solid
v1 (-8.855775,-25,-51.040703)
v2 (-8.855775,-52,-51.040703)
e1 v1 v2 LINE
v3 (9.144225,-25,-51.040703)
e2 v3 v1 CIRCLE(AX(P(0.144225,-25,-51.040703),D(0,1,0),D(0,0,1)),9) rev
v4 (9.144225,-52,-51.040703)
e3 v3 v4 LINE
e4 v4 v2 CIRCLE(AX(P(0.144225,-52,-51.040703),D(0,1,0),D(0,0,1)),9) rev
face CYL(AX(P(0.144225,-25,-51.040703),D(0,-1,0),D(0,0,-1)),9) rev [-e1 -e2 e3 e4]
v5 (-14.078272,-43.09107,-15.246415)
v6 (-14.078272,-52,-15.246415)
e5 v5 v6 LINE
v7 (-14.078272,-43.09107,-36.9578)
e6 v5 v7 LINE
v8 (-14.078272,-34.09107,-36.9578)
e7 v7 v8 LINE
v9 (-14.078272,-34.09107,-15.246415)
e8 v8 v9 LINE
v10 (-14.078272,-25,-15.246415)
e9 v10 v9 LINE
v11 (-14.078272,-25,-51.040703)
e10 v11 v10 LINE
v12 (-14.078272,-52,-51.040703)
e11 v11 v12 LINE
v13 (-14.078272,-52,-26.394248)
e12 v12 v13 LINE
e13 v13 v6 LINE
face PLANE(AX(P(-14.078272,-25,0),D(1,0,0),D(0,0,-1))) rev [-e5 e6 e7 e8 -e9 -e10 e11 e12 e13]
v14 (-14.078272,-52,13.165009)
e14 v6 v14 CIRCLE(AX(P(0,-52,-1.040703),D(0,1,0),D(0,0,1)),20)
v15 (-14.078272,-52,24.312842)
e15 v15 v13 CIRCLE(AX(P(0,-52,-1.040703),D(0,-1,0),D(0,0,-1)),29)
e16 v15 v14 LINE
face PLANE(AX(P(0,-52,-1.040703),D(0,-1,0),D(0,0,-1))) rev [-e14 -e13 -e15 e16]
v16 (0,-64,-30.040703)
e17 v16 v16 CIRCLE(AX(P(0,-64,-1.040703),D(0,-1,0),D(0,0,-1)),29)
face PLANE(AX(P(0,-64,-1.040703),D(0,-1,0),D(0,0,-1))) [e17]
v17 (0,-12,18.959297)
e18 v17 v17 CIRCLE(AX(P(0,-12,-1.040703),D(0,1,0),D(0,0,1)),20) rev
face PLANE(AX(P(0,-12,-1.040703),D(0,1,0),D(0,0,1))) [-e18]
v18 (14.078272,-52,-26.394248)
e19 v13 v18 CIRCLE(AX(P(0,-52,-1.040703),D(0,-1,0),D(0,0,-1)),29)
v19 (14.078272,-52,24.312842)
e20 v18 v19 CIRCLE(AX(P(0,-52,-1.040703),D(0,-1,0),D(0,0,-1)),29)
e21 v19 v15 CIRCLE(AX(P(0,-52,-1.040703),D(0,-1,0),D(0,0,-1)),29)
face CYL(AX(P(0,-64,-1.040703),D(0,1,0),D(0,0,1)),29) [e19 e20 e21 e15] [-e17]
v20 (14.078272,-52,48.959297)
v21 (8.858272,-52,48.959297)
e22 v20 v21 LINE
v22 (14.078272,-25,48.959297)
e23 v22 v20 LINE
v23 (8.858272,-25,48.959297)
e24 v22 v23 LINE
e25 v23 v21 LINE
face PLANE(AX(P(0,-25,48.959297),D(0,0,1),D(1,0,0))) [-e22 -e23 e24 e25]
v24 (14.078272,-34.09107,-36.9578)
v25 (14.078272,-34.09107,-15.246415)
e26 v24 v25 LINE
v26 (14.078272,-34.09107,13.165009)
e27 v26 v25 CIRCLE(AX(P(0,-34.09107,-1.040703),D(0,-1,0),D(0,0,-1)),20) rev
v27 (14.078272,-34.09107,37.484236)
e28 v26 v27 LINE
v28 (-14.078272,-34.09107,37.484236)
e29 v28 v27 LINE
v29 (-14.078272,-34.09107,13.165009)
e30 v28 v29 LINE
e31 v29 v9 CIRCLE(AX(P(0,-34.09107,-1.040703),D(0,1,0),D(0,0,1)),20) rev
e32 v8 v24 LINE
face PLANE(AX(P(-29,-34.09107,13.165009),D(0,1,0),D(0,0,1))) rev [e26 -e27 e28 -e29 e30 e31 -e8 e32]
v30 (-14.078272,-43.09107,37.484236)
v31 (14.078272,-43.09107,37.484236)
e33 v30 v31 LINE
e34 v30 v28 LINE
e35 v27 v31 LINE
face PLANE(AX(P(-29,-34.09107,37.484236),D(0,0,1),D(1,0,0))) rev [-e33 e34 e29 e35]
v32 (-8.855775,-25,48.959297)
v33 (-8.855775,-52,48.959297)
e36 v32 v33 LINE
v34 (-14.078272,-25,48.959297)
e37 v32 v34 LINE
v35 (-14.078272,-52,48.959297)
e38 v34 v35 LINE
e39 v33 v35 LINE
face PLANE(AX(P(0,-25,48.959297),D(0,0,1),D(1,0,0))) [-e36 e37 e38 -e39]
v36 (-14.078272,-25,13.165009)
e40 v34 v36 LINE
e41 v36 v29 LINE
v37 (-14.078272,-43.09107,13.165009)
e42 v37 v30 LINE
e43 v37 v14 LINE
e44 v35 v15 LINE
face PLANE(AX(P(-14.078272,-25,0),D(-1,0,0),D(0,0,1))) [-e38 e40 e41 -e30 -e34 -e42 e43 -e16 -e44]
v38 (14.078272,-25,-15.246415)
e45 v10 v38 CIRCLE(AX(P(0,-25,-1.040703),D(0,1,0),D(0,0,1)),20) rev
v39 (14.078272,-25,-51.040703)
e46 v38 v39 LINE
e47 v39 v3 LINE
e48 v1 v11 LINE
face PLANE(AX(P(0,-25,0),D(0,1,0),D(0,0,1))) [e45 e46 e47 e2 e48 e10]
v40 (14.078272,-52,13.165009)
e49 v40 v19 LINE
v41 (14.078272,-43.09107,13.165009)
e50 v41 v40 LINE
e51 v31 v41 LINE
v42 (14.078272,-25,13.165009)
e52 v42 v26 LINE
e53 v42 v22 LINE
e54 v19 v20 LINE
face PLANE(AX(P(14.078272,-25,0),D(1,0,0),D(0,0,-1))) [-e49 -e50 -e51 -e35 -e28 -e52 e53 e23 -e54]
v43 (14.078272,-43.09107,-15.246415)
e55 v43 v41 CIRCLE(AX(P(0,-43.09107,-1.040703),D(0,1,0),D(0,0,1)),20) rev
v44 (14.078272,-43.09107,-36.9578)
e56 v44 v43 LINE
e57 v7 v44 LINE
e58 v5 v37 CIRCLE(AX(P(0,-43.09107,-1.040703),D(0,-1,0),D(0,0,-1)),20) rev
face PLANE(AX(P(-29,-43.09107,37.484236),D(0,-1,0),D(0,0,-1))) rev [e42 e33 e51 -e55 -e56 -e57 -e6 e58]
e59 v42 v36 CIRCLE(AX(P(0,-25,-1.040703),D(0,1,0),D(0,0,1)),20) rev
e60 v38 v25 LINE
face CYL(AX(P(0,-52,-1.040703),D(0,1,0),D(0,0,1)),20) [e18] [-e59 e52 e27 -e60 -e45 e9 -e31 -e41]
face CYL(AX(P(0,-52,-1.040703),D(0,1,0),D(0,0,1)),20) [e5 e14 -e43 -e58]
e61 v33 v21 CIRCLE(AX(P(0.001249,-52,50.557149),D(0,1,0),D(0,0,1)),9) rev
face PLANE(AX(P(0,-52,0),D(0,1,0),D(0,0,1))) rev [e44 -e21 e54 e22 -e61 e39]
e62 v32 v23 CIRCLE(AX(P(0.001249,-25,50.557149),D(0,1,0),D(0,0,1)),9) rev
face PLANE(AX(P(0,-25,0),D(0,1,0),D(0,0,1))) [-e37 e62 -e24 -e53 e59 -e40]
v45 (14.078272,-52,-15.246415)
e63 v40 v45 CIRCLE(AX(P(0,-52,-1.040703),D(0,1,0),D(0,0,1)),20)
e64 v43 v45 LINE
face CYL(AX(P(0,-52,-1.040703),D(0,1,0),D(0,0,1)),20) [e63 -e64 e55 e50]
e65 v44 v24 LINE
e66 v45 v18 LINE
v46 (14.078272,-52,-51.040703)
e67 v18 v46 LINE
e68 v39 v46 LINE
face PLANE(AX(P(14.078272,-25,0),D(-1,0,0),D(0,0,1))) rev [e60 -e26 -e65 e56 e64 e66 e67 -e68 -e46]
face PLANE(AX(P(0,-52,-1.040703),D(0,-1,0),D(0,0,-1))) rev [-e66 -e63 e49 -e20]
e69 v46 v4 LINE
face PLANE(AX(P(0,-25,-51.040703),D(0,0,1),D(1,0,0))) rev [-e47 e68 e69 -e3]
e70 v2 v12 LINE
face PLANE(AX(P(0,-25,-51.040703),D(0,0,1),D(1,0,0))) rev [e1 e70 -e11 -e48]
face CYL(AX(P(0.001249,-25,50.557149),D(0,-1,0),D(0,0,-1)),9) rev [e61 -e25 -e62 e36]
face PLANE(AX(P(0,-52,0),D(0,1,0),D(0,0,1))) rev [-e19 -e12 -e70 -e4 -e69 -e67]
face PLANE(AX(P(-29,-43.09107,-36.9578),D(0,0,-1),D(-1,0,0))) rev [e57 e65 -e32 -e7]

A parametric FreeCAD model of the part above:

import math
import FreeCAD as App
import Part
import Sketcher

V = App.Vector


def add_polygon(sketch, points):
    """Adds a closed chain of lines whose ends are joined by coincident constraints."""
    first, n = sketch.GeometryCount, len(points)
    for a, b in zip(points, points[1:] + points[:1]):
        sketch.addGeometry(Part.LineSegment(App.Vector(*a, 0), App.Vector(*b, 0)), False)
    for i in range(n):
        sketch.addConstraint(Sketcher.Constraint("Coincident", first + i, 2, first + (i + 1) % n, 1))

doc = App.newDocument("Part")
body = doc.addObject("PartDesign::Body", "Body")

# Sketch on XZ plane
sketch1 = doc.addObject("Sketcher::SketchObject", "Sketch")
body.addObject(sketch1)
sketch1.AttachmentSupport = (doc.XZ_Plane, [""])
sketch1.MapMode = "FlatFace"
sketch1.addGeometry(Part.Circle(V(0, -1, 0), V(0, 0, 1), 20), False)
sketch1.addConstraint([
    Sketcher.Constraint("PointOnObject", 0, 3, -2),
    Sketcher.Constraint("Diameter", 0, 40.0),
    Sketcher.Constraint("DistanceY", 0, 3, -1, 1, 1.040703),
])
pad1 = doc.addObject("PartDesign::Pad", "Pad")
body.addObject(pad1)
pad1.Profile = sketch1
pad1.Length = 52

# Sketch on XZ plane
sketch2 = doc.addObject("Sketcher::SketchObject", "Sketch001")
body.addObject(sketch2)
sketch2.AttachmentSupport = (doc.XZ_Plane, [""])
sketch2.MapMode = "FlatFace"
sketch2.AttachmentOffset = App.Placement(V(0, 0, 52), App.Rotation())
sketch2.addGeometry(Part.Circle(V(0, -1, 0), V(0, 0, 1), 29), False)
sketch2.addConstraint([
    Sketcher.Constraint("PointOnObject", 0, 3, -2),
    Sketcher.Constraint("Diameter", 0, 58.0),
    Sketcher.Constraint("DistanceY", 0, 3, -1, 1, 1.040703),
])
pad2 = doc.addObject("PartDesign::Pad", "Pad001")
body.addObject(pad2)
pad2.Profile = sketch2
pad2.Length = 12

# Sketch on XZ plane
sketch3 = doc.addObject("Sketcher::SketchObject", "Sketch002")
body.addObject(sketch3)
sketch3.AttachmentSupport = (doc.XZ_Plane, [""])
sketch3.MapMode = "FlatFace"
sketch3.AttachmentOffset = App.Placement(V(0, 0, 52), App.Rotation())
sketch3.addGeometry([
    Part.LineSegment(V(14.1, 13.2, 0), V(-14.1, 13.2, 0)),  # 0
    Part.LineSegment(V(-14.1, 13.2, 0), V(-14.1, 49, 0)),  # 1
    Part.LineSegment(V(-14.1, 49, 0), V(-8.9, 49, 0)),  # 2
    Part.ArcOfCircle(Part.Circle(V(0, 50.6, 0), V(0, 0, 1), 9), math.radians(-170), math.radians(-10)),  # 3
    Part.LineSegment(V(8.9, 49, 0), V(14.1, 49, 0)),  # 4
    Part.LineSegment(V(14.1, 49, 0), V(14.1, 13.2, 0)),  # 5
    Part.LineSegment(V(-14.1, -51, 0), V(-14.1, -15.2, 0)),  # 6
    Part.LineSegment(V(-14.1, -15.2, 0), V(14.1, -15.2, 0)),  # 7
    Part.LineSegment(V(14.1, -15.2, 0), V(14.1, -51, 0)),  # 8
    Part.LineSegment(V(14.1, -51, 0), V(9.1, -51, 0)),  # 9
    Part.ArcOfCircle(Part.Circle(V(0.1, -51, 0), V(0, 0, 1), 9), math.radians(0), math.radians(180)),  # 10
    Part.LineSegment(V(-8.9, -51, 0), V(-14.1, -51, 0)),  # 11
], False)
sketch3.addConstraint([
    Sketcher.Constraint("Coincident", 0, 2, 1, 1),
    Sketcher.Constraint("Coincident", 1, 2, 2, 1),
    Sketcher.Constraint("Coincident", 2, 2, 3, 1),
    Sketcher.Constraint("Coincident", 3, 2, 4, 1),
    Sketcher.Constraint("Coincident", 4, 2, 5, 1),
    Sketcher.Constraint("Coincident", 5, 2, 0, 1),
    Sketcher.Constraint("Coincident", 6, 2, 7, 1),
    Sketcher.Constraint("Coincident", 7, 2, 8, 1),
    Sketcher.Constraint("Coincident", 8, 2, 9, 1),
    Sketcher.Constraint("Coincident", 9, 2, 10, 1),
    Sketcher.Constraint("Coincident", 10, 2, 11, 1),
    Sketcher.Constraint("Coincident", 11, 2, 6, 1),
    Sketcher.Constraint("Horizontal", 0),
    Sketcher.Constraint("Vertical", 1),
    Sketcher.Constraint("Horizontal", 2),
    Sketcher.Constraint("Horizontal", 4),
    Sketcher.Constraint("Vertical", 5),
    Sketcher.Constraint("Vertical", 6),
    Sketcher.Constraint("Horizontal", 7),
    Sketcher.Constraint("Vertical", 8),
    Sketcher.Constraint("Horizontal", 9),
    Sketcher.Constraint("Horizontal", 11),
    Sketcher.Constraint("Equal", 3, 10),
    Sketcher.Constraint("Symmetric", 1, 2, 4, 2, -2),
    Sketcher.Constraint("Symmetric", 8, 2, 11, 2, -2),
    Sketcher.Constraint("Horizontal", 10, 3, 8, 2),
    Sketcher.Constraint("Vertical", 1, 2, 6, 2),
    Sketcher.Constraint("Vertical", 2, 2, 10, 2),
    Sketcher.Constraint("Equal", 5, 6),
    Sketcher.Constraint("Radius", 3, 9.0),
    Sketcher.Constraint("DistanceY", 10, 3, 1, 2, 100.0),
    Sketcher.Constraint("DistanceX", 4, 1, 4, 2, 5.22),
    Sketcher.Constraint("DistanceY", 1, 1, 1, 2, 35.794288),
    Sketcher.Constraint("DistanceX", 0, 2, 0, 1, 28.156544),
    Sketcher.Constraint("DistanceX", 2, 1, 2, 2, 5.222497),
    Sketcher.Constraint("DistanceY", -1, 1, 3, 3, 50.557149),
])
pad3 = doc.addObject("PartDesign::Pad", "Pad002")
body.addObject(pad3)
pad3.Profile = sketch3
pad3.Length = 27
pad3.Reversed = True

# Sketch on YZ plane
sketch4 = doc.addObject("Sketcher::SketchObject", "Sketch003")
body.addObject(sketch4)
sketch4.AttachmentSupport = (doc.YZ_Plane, [""])
sketch4.MapMode = "FlatFace"
sketch4.AttachmentOffset = App.Placement(V(0, 0, 14.078272), App.Rotation())
add_polygon(sketch4, [(-34, 37), (-43, 37), (-43, -37), (-34, -37)])  # lines 0-3
sketch4.addConstraint([
    Sketcher.Constraint("Horizontal", 0),
    Sketcher.Constraint("Vertical", 1),
    Sketcher.Constraint("Horizontal", 2),
    Sketcher.Constraint("Vertical", 3),
    Sketcher.Constraint("DistanceX", 0, 2, 0, 1, 9.0),
    Sketcher.Constraint("DistanceY", 1, 2, -1, 1, 36.9578),
    Sketcher.Constraint("DistanceY", 1, 2, 1, 1, 74.442037),
    Sketcher.Constraint("DistanceX", 0, 2, -1, 1, 43.09107),
])
pocket1 = doc.addObject("PartDesign::Pocket", "Pocket")
body.addObject(pocket1)
pocket1.Profile = sketch4
pocket1.Type = "ThroughAll"

# Sketch on YZ plane
sketch5 = doc.addObject("Sketcher::SketchObject", "Sketch004")
body.addObject(sketch5)
sketch5.AttachmentSupport = (doc.YZ_Plane, [""])
sketch5.MapMode = "FlatFace"
add_polygon(sketch5, [(-34, 13), (-43, 13), (-43, -15), (-34, -15)])  # lines 0-3
sketch5.addConstraint([
    Sketcher.Constraint("Horizontal", 0),
    Sketcher.Constraint("Vertical", 1),
    Sketcher.Constraint("Horizontal", 2),
    Sketcher.Constraint("Vertical", 3),
    Sketcher.Constraint("DistanceX", 0, 2, 0, 1, 9.0),
    Sketcher.Constraint("DistanceY", 1, 2, 1, 1, 28.411424),
    Sketcher.Constraint("DistanceX", 0, 2, -1, 1, 43.09107),
    Sketcher.Constraint("DistanceY", -1, 1, 0, 2, 13.165009),
])
pocket2 = doc.addObject("PartDesign::Pocket", "Pocket001")
body.addObject(pocket2)
pocket2.Profile = sketch5
pocket2.Length = 52
pocket2.Midplane = True

# Sketch on XZ plane
sketch6 = doc.addObject("Sketcher::SketchObject", "Sketch005")
body.addObject(sketch6)
sketch6.AttachmentSupport = (doc.XZ_Plane, [""])
sketch6.MapMode = "FlatFace"
sketch6.addGeometry(Part.Circle(V(0, -1, 0), V(0, 0, 1), 20), False)
sketch6.addConstraint([
    Sketcher.Constraint("PointOnObject", 0, 3, -2),
    Sketcher.Constraint("Diameter", 0, 40.191448),
    Sketcher.Constraint("DistanceY", 0, 3, -1, 1, 1.040703),
])
pocket3 = doc.addObject("PartDesign::Pocket", "Pocket002")
body.addObject(pocket3)
pocket3.Profile = sketch6
pocket3.Length = 12
pocket3.Reversed = True

doc.recompute()
